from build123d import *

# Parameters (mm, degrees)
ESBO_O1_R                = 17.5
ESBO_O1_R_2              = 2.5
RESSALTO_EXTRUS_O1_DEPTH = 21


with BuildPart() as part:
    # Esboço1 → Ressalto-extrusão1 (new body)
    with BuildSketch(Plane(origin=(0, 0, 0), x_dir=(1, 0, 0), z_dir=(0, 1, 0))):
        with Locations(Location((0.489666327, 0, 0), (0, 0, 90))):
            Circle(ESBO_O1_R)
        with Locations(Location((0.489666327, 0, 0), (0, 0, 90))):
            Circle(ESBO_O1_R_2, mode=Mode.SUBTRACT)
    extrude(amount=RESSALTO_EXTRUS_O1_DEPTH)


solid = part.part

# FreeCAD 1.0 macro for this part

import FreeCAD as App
import Part
import Sketcher
from FreeCAD import Vector

doc = App.newDocument("Part")
body = doc.addObject("PartDesign::Body", "Body")

sketch1 = body.newObject("Sketcher::SketchObject", "Sketch")
sketch1.AttachmentSupport = (doc.getObject("XZ_Plane"), [""])
sketch1.MapMode = "FlatFace"
sketch1.addGeometry(Part.Circle(Vector(0.489666, 0, 0), Vector(0, 0, 1), 17.5), False)
sketch1.addGeometry(Part.Circle(Vector(0.489666, 0, 0), Vector(0, 0, 1), 2.5), False)
sketch1.addConstraint(Sketcher.Constraint("Coincident", 1, 3, 0, 3))
sketch1.addConstraint(Sketcher.Constraint("PointOnObject", 0, 3, -1))
sketch1.addConstraint(Sketcher.Constraint("Diameter", 0, 35.0))
sketch1.addConstraint(Sketcher.Constraint("Diameter", 1, 5.0))
sketch1.addConstraint(Sketcher.Constraint("DistanceX", -1, 1, 0, 3, 0.489666))
pad1 = body.newObject("PartDesign::Pad", "Pad")
pad1.Profile = sketch1
pad1.Length = 21
pad1.Reversed = True

doc.recompute()
